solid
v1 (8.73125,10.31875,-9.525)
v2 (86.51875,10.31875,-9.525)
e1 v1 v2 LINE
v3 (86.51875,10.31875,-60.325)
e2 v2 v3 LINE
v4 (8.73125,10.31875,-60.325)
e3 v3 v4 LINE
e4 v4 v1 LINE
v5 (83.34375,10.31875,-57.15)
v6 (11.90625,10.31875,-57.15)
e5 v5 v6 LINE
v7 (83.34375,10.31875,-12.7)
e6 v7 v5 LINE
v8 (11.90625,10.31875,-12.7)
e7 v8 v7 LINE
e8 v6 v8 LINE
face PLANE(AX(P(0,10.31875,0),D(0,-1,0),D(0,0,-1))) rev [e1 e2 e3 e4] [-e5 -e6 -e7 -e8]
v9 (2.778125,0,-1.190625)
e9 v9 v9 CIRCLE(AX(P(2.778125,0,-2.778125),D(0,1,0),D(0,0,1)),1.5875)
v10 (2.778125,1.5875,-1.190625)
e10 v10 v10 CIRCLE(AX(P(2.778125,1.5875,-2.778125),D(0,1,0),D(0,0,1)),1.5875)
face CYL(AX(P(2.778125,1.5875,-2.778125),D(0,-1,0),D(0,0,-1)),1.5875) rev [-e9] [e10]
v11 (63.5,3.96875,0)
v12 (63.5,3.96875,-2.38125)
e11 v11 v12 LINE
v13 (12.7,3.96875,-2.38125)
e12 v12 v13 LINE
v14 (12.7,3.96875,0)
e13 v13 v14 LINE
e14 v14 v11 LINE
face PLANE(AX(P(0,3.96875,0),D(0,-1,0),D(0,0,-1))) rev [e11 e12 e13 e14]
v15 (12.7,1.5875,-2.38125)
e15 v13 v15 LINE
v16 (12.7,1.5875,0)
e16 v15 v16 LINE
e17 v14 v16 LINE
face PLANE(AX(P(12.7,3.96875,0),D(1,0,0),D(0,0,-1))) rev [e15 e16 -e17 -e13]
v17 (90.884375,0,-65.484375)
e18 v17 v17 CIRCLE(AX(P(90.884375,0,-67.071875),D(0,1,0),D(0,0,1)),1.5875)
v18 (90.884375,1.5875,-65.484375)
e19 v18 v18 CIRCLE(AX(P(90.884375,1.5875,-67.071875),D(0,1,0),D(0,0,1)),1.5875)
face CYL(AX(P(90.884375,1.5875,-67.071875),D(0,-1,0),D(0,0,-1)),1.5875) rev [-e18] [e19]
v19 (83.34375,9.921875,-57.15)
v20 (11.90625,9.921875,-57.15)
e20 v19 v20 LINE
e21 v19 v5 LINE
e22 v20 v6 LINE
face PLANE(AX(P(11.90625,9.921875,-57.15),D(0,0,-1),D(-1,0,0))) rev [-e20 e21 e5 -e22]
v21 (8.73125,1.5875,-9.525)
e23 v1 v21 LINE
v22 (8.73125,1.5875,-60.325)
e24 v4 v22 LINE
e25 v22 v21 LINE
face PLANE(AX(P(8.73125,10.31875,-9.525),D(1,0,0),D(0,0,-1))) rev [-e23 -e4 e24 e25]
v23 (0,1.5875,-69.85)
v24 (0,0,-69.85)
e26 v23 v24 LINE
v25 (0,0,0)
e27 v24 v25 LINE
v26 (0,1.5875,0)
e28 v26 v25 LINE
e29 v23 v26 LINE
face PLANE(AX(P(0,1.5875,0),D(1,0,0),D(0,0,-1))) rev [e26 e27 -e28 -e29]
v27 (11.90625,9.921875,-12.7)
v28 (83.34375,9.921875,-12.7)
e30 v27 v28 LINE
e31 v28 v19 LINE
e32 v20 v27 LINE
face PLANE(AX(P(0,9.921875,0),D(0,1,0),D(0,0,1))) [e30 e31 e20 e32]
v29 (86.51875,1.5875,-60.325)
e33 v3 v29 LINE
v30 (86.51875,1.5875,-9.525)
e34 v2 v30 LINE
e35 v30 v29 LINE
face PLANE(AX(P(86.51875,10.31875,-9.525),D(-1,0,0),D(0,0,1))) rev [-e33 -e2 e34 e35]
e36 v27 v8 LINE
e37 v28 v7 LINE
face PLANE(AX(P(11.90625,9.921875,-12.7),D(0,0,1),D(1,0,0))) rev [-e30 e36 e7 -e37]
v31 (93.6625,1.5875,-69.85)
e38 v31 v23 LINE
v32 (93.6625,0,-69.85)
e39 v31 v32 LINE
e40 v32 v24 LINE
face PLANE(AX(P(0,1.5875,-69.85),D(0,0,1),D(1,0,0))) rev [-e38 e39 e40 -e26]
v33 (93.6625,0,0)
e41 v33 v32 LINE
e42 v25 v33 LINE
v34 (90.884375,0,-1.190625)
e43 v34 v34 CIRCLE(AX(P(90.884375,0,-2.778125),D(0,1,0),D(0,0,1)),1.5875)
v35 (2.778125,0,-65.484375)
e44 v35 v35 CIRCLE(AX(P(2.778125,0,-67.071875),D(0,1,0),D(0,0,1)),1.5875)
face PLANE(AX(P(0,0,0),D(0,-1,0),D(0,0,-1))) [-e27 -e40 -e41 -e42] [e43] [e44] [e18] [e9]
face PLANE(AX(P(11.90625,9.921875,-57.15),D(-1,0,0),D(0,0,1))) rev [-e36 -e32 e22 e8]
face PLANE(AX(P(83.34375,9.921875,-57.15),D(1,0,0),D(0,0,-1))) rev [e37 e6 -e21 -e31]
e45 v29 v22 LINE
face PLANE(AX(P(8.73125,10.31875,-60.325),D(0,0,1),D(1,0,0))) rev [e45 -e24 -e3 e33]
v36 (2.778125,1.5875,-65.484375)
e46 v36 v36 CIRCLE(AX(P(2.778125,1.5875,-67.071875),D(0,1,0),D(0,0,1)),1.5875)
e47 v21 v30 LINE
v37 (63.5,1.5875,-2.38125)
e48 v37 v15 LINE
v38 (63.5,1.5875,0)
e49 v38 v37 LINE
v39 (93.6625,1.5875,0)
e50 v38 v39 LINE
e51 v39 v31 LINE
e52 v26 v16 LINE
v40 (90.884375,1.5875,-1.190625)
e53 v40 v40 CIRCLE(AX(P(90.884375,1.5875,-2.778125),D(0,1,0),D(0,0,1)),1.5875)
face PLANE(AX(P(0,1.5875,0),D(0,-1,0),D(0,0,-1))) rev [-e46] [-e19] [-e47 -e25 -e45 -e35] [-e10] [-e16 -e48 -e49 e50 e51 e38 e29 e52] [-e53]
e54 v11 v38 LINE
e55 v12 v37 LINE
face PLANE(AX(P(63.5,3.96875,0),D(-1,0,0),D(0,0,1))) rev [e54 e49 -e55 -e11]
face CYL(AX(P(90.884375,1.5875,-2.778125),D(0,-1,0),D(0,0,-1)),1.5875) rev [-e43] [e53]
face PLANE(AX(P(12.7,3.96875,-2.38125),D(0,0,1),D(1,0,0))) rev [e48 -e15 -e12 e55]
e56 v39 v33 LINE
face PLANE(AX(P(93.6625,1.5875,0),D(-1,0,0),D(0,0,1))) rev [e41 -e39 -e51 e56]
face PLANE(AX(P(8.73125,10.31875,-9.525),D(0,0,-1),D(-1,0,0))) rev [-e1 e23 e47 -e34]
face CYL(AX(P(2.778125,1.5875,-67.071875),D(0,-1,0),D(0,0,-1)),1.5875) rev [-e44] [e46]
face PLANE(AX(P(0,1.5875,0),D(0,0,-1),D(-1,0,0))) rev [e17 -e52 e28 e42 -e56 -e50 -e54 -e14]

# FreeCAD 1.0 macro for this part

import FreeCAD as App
import Part
import Sketcher
from FreeCAD import Vector
Q = App.Units.Quantity

doc = App.newDocument("Part")
params = doc.addObject("Spreadsheet::Sheet", "Params")
for row, (alias, value) in enumerate([
    ("sketch1_diameter", "0.125 in"),
    ("sketch1_height", "2.75 in"),
    ("sketch1_width", "3.6875 in"),
    ("pad1_length", "0.0625 in"),
    ("sketch2_height", "2 in"),
    ("sketch2_width", "3.0625 in"),
    ("pad2_length", "0.34375 in"),
    ("sketch3_width", "2 in"),
    ("sketch3_height", "0.09375 in"),
    ("pad3_length", "0.09375 in"),
    ("sketch4_height", "1.75 in"),
    ("sketch4_width", "2.8125 in"),
    ("pocket1_length", "0.015625 in"),
], start=1):
    params.set(f"A{row}", alias)
    params.set(f"B{row}", "=" + value)
    params.setAlias(f"B{row}", alias)

body = doc.addObject("PartDesign::Body", "Body")

# Sketch on XZ plane
sketch1 = body.newObject("Sketcher::SketchObject", "Sketch")
sketch1.AttachmentSupport = (doc.getObject("XZ_Plane"), [""])
sketch1.MapMode = "FlatFace"
sketch1.addGeometry([
    Part.LineSegment(Vector(0, -69.8, 0), Vector(0, 0, 0)),  # 0
    Part.LineSegment(Vector(0, 0, 0), Vector(93.7, 0, 0)),  # 1
    Part.LineSegment(Vector(93.7, 0, 0), Vector(93.7, -69.8, 0)),  # 2
    Part.LineSegment(Vector(93.7, -69.8, 0), Vector(0, -69.8, 0)),  # 3
    Part.Circle(Vector(2.8, -2.8, 0), Vector(0, 0, 1), 1.6),  # 4
    Part.Circle(Vector(90.9, -2.8, 0), Vector(0, 0, 1), 1.6),  # 5
    Part.Circle(Vector(2.8, -67.1, 0), Vector(0, 0, 1), 1.6),  # 6
    Part.Circle(Vector(90.9, -67.1, 0), Vector(0, 0, 1), 1.6),  # 7
], False)
sketch1.addConstraint([
    Sketcher.Constraint("Coincident", 0, 2, 1, 1),
    Sketcher.Constraint("Coincident", 1, 2, 2, 1),
    Sketcher.Constraint("Coincident", 2, 2, 3, 1),
    Sketcher.Constraint("Coincident", 3, 2, 0, 1),
    Sketcher.Constraint("Vertical", 0),
    Sketcher.Constraint("Horizontal", 1),
    Sketcher.Constraint("Vertical", 2),
    Sketcher.Constraint("Horizontal", 3),
    Sketcher.Constraint("Coincident", 0, 2, -1, 1),
    Sketcher.Constraint("Equal", 4, 5),
    Sketcher.Constraint("Equal", 5, 6),
    Sketcher.Constraint("Equal", 6, 7),
    Sketcher.Constraint("Horizontal", 4, 3, 5, 3),
    Sketcher.Constraint("Horizontal", 6, 3, 7, 3),
    Sketcher.Constraint("Vertical", 4, 3, 6, 3),
    Sketcher.Constraint("Vertical", 5, 3, 7, 3),
    Sketcher.Constraint("Diameter", 4, Q("0.125 in")),
    Sketcher.Constraint("DistanceY", 0, 1, 0, 2, Q("2.75 in")),
    Sketcher.Constraint("DistanceX", 1, 1, 1, 2, Q("3.6875 in")),
    Sketcher.Constraint("DistanceX", -1, 1, 4, 3, Q("0.109375 in")),
    Sketcher.Constraint("DistanceY", 4, 3, -1, 1, Q("0.109375 in")),
    Sketcher.Constraint("DistanceX", -1, 1, 5, 3, Q("3.578125 in")),
    Sketcher.Constraint("DistanceY", 6, 3, -1, 1, Q("2.640625 in")),
])
sketch1.setExpression("Constraints[16]", "Params.sketch1_diameter")
sketch1.setExpression("Constraints[17]", "Params.sketch1_height")
sketch1.setExpression("Constraints[18]", "Params.sketch1_width")
pad1 = body.newObject("PartDesign::Pad", "Pad")
pad1.Profile = sketch1
pad1.setExpression("Length", "Params.pad1_length")
pad1.Reversed = True

# Sketch on XZ plane
sketch2 = body.newObject("Sketcher::SketchObject", "Sketch001")
sketch2.AttachmentSupport = (doc.getObject("XZ_Plane"), [""])
sketch2.MapMode = "FlatFace"
sketch2.AttachmentOffset = App.Placement(Vector(0, 0, -0.0625 * 25.4), App.Rotation())
sketch2.addGeometry([
    Part.LineSegment(Vector(9, -60, 0), Vector(9, -10, 0)),
    Part.LineSegment(Vector(9, -10, 0), Vector(87, -10, 0)),
    Part.LineSegment(Vector(87, -10, 0), Vector(87, -60, 0)),
    Part.LineSegment(Vector(87, -60, 0), Vector(9, -60, 0)),
], False)
sketch2.addConstraint([
    Sketcher.Constraint("Coincident", 0, 2, 1, 1),
    Sketcher.Constraint("Coincident", 1, 2, 2, 1),
    Sketcher.Constraint("Coincident", 2, 2, 3, 1),
    Sketcher.Constraint("Coincident", 3, 2, 0, 1),
    Sketcher.Constraint("Vertical", 0),
    Sketcher.Constraint("Horizontal", 1),
    Sketcher.Constraint("Vertical", 2),
    Sketcher.Constraint("Horizontal", 3),
    Sketcher.Constraint("DistanceY", 0, 1, 0, 2, Q("2 in")),
    Sketcher.Constraint("DistanceX", 1, 1, 1, 2, Q("3.0625 in")),
    Sketcher.Constraint("DistanceX", -1, 1, 0, 2, Q("0.34375 in")),
    Sketcher.Constraint("DistanceY", 0, 2, -1, 1, Q("0.375 in")),
])
sketch2.setExpression("Constraints[8]", "Params.sketch2_height")
sketch2.setExpression("Constraints[9]", "Params.sketch2_width")
pad2 = body.newObject("PartDesign::Pad", "Pad001")
pad2.Profile = sketch2
pad2.setExpression("Length", "Params.pad2_length")
pad2.Reversed = True

# Sketch on XZ plane
sketch3 = body.newObject("Sketcher::SketchObject", "Sketch002")
sketch3.AttachmentSupport = (doc.getObject("XZ_Plane"), [""])
sketch3.MapMode = "FlatFace"
sketch3.AttachmentOffset = App.Placement(Vector(0, 0, -0.0625 * 25.4), App.Rotation())
sketch3.addGeometry([
    Part.LineSegment(Vector(12.7, -2.4, 0), Vector(12.7, 0, 0)),
    Part.LineSegment(Vector(12.7, 0, 0), Vector(63.5, 0, 0)),
    Part.LineSegment(Vector(63.5, 0, 0), Vector(63.5, -2.4, 0)),
    Part.LineSegment(Vector(63.5, -2.4, 0), Vector(12.7, -2.4, 0)),
], False)
sketch3.addConstraint([
    Sketcher.Constraint("Coincident", 0, 2, 1, 1),
    Sketcher.Constraint("Coincident", 1, 2, 2, 1),
    Sketcher.Constraint("Coincident", 2, 2, 3, 1),
    Sketcher.Constraint("Coincident", 3, 2, 0, 1),
    Sketcher.Constraint("Vertical", 0),
    Sketcher.Constraint("Horizontal", 1),
    Sketcher.Constraint("Vertical", 2),
    Sketcher.Constraint("Horizontal", 3),
    Sketcher.Constraint("PointOnObject", 0, 2, -1),
    Sketcher.Constraint("DistanceX", 1, 1, 1, 2, Q("2 in")),
    Sketcher.Constraint("DistanceX", -1, 1, 0, 2, Q("0.5 in")),
    Sketcher.Constraint("DistanceY", 0, 1, 0, 2, Q("0.09375 in")),
])
sketch3.setExpression("Constraints[9]", "Params.sketch3_width")
sketch3.setExpression("Constraints[11]", "Params.sketch3_height")
pad3 = body.newObject("PartDesign::Pad", "Pad002")
pad3.Profile = sketch3
pad3.setExpression("Length", "Params.pad3_length")
pad3.Reversed = True

# Sketch on XZ plane
sketch4 = body.newObject("Sketcher::SketchObject", "Sketch003")
sketch4.AttachmentSupport = (doc.getObject("XZ_Plane"), [""])
sketch4.MapMode = "FlatFace"
sketch4.AttachmentOffset = App.Placement(Vector(0, 0, -0.40625 * 25.4), App.Rotation())
sketch4.addGeometry([
    Part.LineSegment(Vector(12, -57, 0), Vector(12, -13, 0)),
    Part.LineSegment(Vector(12, -13, 0), Vector(83, -13, 0)),
    Part.LineSegment(Vector(83, -13, 0), Vector(83, -57, 0)),
    Part.LineSegment(Vector(83, -57, 0), Vector(12, -57, 0)),
], False)
sketch4.addConstraint([
    Sketcher.Constraint("Coincident", 0, 2, 1, 1),
    Sketcher.Constraint("Coincident", 1, 2, 2, 1),
    Sketcher.Constraint("Coincident", 2, 2, 3, 1),
    Sketcher.Constraint("Coincident", 3, 2, 0, 1),
    Sketcher.Constraint("Vertical", 0),
    Sketcher.Constraint("Horizontal", 1),
    Sketcher.Constraint("Vertical", 2),
    Sketcher.Constraint("Horizontal", 3),
    Sketcher.Constraint("DistanceY", 0, 1, 0, 2, Q("1.75 in")),
    Sketcher.Constraint("DistanceY", 0, 2, -1, 1, Q("0.5 in")),
    Sketcher.Constraint("DistanceX", 1, 1, 1, 2, Q("2.8125 in")),
    Sketcher.Constraint("DistanceX", -1, 1, 0, 2, Q("0.46875 in")),
])
sketch4.setExpression("Constraints[8]", "Params.sketch4_height")
sketch4.setExpression("Constraints[10]", "Params.sketch4_width")
pocket1 = body.newObject("PartDesign::Pocket", "Pocket")
pocket1.Profile = sketch4
pocket1.setExpression("Length", "Params.pocket1_length")
pocket1.Reversed = True

doc.recompute()
